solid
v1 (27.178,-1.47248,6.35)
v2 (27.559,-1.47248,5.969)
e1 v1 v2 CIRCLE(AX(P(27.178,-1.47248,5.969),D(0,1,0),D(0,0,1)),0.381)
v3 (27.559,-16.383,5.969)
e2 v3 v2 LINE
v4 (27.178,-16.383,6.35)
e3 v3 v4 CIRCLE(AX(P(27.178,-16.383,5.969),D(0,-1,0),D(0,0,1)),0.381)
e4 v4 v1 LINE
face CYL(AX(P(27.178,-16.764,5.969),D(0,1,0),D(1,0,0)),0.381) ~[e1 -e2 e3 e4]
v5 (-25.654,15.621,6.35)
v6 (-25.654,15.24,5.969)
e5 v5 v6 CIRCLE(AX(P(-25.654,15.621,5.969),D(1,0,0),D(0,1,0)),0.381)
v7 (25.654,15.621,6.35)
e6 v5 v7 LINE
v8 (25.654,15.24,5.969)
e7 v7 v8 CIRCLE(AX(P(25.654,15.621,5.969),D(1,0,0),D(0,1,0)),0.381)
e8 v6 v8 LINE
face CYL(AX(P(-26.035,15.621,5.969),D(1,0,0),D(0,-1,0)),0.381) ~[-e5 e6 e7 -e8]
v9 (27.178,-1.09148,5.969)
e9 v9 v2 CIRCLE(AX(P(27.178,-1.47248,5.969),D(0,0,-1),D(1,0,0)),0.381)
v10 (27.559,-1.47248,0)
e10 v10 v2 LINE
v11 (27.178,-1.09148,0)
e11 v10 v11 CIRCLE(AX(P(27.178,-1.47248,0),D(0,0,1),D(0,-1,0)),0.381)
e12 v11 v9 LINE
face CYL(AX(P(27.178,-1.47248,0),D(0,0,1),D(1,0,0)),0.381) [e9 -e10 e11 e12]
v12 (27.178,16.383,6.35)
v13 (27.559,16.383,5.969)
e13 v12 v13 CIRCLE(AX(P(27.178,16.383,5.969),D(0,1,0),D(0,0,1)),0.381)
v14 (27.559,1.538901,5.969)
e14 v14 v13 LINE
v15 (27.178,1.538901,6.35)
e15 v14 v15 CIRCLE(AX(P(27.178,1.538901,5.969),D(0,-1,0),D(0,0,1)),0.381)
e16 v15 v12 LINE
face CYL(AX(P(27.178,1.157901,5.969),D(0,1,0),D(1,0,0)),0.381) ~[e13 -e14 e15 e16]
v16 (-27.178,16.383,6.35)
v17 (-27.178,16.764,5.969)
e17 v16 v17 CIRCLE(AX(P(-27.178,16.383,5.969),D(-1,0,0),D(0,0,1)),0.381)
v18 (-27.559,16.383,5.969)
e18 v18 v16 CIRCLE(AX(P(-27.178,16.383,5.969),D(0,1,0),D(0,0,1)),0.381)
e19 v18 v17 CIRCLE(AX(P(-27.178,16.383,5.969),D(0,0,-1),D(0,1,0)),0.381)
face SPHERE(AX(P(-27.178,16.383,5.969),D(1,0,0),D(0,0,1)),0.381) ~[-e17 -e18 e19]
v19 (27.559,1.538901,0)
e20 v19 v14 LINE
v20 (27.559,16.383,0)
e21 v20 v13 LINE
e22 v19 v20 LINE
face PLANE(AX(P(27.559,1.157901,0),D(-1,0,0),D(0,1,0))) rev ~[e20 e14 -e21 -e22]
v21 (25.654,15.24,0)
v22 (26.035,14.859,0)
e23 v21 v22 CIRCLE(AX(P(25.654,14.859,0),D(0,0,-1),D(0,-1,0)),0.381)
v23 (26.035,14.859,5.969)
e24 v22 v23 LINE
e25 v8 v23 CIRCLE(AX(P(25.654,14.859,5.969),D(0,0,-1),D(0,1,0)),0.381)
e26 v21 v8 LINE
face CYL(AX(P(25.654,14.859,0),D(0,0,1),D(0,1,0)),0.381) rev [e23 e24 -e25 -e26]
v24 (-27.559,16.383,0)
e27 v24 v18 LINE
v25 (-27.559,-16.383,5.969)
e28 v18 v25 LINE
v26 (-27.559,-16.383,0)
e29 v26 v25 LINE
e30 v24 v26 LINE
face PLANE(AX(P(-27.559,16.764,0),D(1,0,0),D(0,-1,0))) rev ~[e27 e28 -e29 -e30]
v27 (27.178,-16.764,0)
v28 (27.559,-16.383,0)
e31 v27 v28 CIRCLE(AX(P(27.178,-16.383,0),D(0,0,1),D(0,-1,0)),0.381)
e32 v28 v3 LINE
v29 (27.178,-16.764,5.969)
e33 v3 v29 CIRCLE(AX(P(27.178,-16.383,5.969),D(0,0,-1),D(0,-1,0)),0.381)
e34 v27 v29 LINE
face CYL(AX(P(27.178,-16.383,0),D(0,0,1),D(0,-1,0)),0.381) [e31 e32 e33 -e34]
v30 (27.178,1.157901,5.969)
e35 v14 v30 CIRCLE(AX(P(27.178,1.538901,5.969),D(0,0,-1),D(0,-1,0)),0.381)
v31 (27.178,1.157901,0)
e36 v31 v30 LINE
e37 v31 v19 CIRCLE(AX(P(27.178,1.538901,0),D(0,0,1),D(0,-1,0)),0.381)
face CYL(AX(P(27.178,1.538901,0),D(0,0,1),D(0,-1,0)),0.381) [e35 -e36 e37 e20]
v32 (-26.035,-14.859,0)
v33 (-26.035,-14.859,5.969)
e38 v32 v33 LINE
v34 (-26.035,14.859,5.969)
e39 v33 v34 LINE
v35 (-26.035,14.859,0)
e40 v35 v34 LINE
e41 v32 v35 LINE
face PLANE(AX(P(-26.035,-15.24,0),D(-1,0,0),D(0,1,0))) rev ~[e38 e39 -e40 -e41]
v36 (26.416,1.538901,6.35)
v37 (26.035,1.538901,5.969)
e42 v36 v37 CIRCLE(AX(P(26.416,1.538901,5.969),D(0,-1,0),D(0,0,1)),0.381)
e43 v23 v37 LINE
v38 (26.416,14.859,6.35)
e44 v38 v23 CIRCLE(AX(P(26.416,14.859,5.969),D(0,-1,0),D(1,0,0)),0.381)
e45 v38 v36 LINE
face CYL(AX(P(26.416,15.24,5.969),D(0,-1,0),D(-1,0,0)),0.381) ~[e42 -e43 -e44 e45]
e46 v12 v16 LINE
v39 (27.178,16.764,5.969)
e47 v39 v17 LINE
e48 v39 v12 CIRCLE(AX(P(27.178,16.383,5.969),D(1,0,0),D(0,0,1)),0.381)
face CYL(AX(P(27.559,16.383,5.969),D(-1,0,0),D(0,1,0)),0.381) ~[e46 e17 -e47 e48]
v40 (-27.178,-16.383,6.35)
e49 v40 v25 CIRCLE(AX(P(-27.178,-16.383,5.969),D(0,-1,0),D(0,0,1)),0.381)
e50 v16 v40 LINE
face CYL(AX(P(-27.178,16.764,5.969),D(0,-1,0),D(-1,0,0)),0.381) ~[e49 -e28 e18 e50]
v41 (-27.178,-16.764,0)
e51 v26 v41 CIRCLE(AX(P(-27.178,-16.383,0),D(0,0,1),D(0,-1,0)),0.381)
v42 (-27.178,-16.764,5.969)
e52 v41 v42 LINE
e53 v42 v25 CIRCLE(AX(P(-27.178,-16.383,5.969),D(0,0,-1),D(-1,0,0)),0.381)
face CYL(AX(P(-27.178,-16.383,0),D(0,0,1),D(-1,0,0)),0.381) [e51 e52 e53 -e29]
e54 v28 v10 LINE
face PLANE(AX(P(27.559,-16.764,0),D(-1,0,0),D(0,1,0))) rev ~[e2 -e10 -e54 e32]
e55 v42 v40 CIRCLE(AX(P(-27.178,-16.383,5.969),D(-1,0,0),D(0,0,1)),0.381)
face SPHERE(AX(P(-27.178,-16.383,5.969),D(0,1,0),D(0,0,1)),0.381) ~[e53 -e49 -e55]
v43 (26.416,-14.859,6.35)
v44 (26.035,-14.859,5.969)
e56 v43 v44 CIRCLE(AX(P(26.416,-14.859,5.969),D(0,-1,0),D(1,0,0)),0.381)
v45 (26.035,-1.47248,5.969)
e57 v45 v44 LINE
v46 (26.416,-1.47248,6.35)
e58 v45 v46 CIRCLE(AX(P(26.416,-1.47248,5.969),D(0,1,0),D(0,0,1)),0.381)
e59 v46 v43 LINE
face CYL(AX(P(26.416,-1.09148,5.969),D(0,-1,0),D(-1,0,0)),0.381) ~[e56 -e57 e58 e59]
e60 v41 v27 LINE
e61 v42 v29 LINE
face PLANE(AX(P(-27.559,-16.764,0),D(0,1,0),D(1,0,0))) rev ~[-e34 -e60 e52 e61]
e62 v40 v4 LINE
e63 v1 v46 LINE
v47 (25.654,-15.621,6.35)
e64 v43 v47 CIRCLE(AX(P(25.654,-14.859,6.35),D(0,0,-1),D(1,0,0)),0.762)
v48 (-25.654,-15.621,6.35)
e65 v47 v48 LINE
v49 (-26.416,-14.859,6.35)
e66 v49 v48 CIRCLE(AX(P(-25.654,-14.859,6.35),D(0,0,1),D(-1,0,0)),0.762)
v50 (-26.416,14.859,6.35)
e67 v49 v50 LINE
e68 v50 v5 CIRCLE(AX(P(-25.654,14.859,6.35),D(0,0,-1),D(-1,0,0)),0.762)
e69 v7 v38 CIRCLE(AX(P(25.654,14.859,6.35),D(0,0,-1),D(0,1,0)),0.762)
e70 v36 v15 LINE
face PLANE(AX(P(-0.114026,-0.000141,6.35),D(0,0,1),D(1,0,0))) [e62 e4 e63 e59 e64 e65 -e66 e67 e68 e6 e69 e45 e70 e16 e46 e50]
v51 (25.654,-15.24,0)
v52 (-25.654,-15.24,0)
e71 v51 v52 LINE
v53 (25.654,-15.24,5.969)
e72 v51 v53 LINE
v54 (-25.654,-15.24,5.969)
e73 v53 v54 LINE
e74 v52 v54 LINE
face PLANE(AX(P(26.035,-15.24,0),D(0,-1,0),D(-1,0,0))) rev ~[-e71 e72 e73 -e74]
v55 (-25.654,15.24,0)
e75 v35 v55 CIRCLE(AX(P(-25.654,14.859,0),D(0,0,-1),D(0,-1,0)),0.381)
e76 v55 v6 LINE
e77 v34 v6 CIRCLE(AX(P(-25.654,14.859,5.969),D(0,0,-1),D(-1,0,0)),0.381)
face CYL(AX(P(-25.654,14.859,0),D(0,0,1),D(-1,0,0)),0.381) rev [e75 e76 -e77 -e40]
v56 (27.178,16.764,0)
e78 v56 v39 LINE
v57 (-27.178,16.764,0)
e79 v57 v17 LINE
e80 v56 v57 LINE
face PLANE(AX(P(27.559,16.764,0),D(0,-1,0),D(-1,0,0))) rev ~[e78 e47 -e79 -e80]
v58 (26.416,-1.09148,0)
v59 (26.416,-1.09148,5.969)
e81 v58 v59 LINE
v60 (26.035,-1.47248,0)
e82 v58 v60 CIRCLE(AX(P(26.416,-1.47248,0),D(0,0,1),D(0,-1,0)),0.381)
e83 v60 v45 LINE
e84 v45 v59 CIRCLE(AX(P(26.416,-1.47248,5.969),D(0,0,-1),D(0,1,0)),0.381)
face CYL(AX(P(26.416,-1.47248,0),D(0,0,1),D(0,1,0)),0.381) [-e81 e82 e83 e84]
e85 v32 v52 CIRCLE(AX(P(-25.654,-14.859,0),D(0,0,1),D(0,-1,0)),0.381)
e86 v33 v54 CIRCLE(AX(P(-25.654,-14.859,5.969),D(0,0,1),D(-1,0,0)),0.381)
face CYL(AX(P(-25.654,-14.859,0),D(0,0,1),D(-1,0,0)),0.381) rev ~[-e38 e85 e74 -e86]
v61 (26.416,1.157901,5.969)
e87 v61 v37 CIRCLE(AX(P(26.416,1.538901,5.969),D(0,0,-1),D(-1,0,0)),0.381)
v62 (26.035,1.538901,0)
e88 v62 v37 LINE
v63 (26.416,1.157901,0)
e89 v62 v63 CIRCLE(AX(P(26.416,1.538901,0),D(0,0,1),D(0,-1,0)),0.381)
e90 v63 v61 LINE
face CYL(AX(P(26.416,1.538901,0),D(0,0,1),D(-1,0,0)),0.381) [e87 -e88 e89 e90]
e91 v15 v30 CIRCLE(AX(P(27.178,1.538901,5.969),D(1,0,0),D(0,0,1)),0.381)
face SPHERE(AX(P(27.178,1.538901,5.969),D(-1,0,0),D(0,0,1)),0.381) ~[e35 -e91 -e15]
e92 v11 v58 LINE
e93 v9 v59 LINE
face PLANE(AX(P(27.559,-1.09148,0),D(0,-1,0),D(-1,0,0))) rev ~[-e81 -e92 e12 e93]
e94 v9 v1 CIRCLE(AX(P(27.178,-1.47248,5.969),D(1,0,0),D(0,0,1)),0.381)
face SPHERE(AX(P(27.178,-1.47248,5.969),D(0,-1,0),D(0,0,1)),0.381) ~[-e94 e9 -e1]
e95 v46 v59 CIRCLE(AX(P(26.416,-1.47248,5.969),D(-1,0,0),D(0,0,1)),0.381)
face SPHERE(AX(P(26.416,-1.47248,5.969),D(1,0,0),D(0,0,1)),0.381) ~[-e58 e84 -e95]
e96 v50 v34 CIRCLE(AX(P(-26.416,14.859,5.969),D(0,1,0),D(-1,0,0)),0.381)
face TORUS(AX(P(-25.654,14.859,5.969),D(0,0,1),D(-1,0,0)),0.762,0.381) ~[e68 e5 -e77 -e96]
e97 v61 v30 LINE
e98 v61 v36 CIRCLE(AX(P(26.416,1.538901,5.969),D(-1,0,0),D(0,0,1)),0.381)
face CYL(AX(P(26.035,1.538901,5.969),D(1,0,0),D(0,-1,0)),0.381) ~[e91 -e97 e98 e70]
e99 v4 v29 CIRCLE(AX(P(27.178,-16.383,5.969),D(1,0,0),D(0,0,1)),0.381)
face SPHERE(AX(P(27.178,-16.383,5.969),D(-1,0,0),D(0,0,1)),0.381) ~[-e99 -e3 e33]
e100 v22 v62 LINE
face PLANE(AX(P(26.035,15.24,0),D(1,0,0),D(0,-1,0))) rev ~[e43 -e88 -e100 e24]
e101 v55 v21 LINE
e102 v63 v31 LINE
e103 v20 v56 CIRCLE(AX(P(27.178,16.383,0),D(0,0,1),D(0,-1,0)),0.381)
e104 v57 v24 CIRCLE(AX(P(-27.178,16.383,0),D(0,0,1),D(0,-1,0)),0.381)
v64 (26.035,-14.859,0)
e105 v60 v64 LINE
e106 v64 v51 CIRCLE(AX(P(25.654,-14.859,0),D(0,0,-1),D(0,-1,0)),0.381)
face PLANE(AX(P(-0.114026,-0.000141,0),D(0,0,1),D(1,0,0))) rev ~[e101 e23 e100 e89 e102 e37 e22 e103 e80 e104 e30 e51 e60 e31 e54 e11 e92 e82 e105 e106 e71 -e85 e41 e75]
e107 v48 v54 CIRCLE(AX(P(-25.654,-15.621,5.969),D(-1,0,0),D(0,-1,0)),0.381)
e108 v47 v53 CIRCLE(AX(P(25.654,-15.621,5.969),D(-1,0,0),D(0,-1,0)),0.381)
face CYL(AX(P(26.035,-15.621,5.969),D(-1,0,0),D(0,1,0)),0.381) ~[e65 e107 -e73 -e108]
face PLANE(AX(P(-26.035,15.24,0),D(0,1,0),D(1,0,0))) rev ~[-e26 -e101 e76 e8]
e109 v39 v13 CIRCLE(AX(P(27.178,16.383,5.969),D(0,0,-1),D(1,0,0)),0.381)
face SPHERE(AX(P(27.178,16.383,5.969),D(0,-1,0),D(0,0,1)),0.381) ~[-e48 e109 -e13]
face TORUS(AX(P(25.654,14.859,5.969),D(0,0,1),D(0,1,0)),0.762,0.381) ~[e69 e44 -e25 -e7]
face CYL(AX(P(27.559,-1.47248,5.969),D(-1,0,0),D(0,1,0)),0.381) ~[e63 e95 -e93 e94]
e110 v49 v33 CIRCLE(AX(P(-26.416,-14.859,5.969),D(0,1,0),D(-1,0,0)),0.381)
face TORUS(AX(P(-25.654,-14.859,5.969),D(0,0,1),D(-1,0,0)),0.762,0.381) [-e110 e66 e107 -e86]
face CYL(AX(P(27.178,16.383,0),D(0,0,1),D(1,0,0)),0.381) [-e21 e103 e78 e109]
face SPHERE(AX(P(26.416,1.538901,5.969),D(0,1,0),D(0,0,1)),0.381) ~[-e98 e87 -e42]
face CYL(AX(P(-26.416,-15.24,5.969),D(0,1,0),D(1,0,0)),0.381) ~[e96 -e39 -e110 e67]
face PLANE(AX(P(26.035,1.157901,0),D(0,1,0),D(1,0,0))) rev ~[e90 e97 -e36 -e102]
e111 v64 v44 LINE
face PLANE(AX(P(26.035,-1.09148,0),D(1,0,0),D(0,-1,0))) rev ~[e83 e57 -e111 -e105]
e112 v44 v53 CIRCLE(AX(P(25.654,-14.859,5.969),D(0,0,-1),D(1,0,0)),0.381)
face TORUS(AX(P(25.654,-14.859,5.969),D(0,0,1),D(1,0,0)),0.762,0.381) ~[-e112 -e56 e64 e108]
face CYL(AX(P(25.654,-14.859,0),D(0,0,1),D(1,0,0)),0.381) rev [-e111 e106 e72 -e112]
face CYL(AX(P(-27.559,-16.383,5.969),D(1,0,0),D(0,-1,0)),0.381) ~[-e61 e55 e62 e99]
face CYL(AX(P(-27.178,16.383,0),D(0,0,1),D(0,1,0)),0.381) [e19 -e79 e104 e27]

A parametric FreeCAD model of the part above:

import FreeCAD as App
import Part
import Sketcher
from FreeCAD import Vector
Q = App.Units.Quantity


def edges_at(feature, points):
    """Names of the edges that pass closest to the given points."""
    edges = feature.Shape.Edges
    near = lambda p: min(range(len(edges)), key=lambda i: edges[i].distToShape(Part.Vertex(*p))[0])
    return sorted({f"Edge{near(p) + 1}" for p in points})


def add_polygon(sketch, points):
    """Adds a closed chain of lines whose ends are joined by coincident constraints."""
    first, n = sketch.GeometryCount, len(points)
    for a, b in zip(points, points[1:] + points[:1]):
        sketch.addGeometry(Part.LineSegment(App.Vector(*a, 0), App.Vector(*b, 0)), False)
    for i in range(n):
        sketch.addConstraint(Sketcher.Constraint("Coincident", first + i, 2, first + (i + 1) % n, 1))

doc = App.newDocument("Part")
body = doc.addObject("PartDesign::Body", "Body")

sketch1 = body.newObject("Sketcher::SketchObject", "Sketch")
sketch1.AttachmentSupport = (doc.getObject("XY_Plane"), [""])
sketch1.MapMode = "FlatFace"
add_polygon(sketch1, [(-26, -15.2), (-26, 15.2), (26, 15.2), (26, 1.2), (27.6, 1.2), (27.6, 16.8), (-27.6, 16.8), (-27.6, -16.8), (27.6, -16.8), (27.6, -1.1), (26, -1.1), (26, -15.2)])
sketch1.addConstraint(Sketcher.Constraint("Vertical", 0))
sketch1.addConstraint(Sketcher.Constraint("Horizontal", 1))
sketch1.addConstraint(Sketcher.Constraint("Vertical", 2))
sketch1.addConstraint(Sketcher.Constraint("Horizontal", 3))
sketch1.addConstraint(Sketcher.Constraint("Vertical", 4))
sketch1.addConstraint(Sketcher.Constraint("Horizontal", 5))
sketch1.addConstraint(Sketcher.Constraint("Vertical", 6))
sketch1.addConstraint(Sketcher.Constraint("Horizontal", 7))
sketch1.addConstraint(Sketcher.Constraint("Vertical", 8))
sketch1.addConstraint(Sketcher.Constraint("Horizontal", 9))
sketch1.addConstraint(Sketcher.Constraint("Vertical", 10))
sketch1.addConstraint(Sketcher.Constraint("Horizontal", 11))
sketch1.addConstraint(Sketcher.Constraint("Symmetric", 4, 2, 6, 2, -1, 1))
sketch1.addConstraint(Sketcher.Constraint("Symmetric", 0, 2, 10, 2, -1, 1))
sketch1.addConstraint(Sketcher.Constraint("Vertical", 4, 2, 7, 2))
sketch1.addConstraint(Sketcher.Constraint("Vertical", 2, 2, 9, 2))
sketch1.addConstraint(Sketcher.Constraint("DistanceY", 0, 1, 0, 2, Q("1.2 in")))
sketch1.addConstraint(Sketcher.Constraint("DistanceX", 1, 1, 1, 2, Q("2.05 in")))
sketch1.addConstraint(Sketcher.Constraint("DistanceX", 3, 1, 3, 2, Q("0.06 in")))
sketch1.addConstraint(Sketcher.Constraint("DistanceY", 6, 2, 6, 1, Q("1.32 in")))
sketch1.addConstraint(Sketcher.Constraint("DistanceY", 2, 2, 2, 1, 14.082099))
sketch1.addConstraint(Sketcher.Constraint("DistanceY", 8, 1, 8, 2, 15.67252))
pad1 = body.newObject("PartDesign::Pad", "Pad")
pad1.Profile = sketch1
pad1.Length = Q("0.25 in")
doc.recompute()

fillet = body.newObject("PartDesign::Fillet", "Fillet")
fillet.Base = (pad1, edges_at(pad1, [
    (-26.035, 0, 6.35),
    (0, 15.24, 6.35),
    (26.035, 8.199, 6.35),
    (26.797, 1.158, 6.35),
    (27.559, 8.961, 6.35),
    (0, 16.764, 6.35),
    (-27.559, 0, 6.35),
    (0, -16.764, 6.35),
    (27.559, -8.928, 6.35),
    (26.797, -1.091, 6.35),
    (26.035, -8.166, 6.35),
    (0, -15.24, 6.35),
    (27.559, -16.764, 3.175),
    (-27.559, -16.764, 3.175),
    (-27.559, 16.764, 3.175),
    (27.559, 16.764, 3.175),
    (27.559, -1.091, 3.175),
    (27.559, 1.158, 3.175),
    (-26.035, -15.24, 3.175),
    (-26.035, 15.24, 3.175),
    (26.035, 15.24, 3.175),
    (26.035, 1.158, 3.175),
    (26.035, -1.091, 3.175),
    (26.035, -15.24, 3.175),
]))
fillet.Radius = Q("0.015 in")

doc.recompute()
